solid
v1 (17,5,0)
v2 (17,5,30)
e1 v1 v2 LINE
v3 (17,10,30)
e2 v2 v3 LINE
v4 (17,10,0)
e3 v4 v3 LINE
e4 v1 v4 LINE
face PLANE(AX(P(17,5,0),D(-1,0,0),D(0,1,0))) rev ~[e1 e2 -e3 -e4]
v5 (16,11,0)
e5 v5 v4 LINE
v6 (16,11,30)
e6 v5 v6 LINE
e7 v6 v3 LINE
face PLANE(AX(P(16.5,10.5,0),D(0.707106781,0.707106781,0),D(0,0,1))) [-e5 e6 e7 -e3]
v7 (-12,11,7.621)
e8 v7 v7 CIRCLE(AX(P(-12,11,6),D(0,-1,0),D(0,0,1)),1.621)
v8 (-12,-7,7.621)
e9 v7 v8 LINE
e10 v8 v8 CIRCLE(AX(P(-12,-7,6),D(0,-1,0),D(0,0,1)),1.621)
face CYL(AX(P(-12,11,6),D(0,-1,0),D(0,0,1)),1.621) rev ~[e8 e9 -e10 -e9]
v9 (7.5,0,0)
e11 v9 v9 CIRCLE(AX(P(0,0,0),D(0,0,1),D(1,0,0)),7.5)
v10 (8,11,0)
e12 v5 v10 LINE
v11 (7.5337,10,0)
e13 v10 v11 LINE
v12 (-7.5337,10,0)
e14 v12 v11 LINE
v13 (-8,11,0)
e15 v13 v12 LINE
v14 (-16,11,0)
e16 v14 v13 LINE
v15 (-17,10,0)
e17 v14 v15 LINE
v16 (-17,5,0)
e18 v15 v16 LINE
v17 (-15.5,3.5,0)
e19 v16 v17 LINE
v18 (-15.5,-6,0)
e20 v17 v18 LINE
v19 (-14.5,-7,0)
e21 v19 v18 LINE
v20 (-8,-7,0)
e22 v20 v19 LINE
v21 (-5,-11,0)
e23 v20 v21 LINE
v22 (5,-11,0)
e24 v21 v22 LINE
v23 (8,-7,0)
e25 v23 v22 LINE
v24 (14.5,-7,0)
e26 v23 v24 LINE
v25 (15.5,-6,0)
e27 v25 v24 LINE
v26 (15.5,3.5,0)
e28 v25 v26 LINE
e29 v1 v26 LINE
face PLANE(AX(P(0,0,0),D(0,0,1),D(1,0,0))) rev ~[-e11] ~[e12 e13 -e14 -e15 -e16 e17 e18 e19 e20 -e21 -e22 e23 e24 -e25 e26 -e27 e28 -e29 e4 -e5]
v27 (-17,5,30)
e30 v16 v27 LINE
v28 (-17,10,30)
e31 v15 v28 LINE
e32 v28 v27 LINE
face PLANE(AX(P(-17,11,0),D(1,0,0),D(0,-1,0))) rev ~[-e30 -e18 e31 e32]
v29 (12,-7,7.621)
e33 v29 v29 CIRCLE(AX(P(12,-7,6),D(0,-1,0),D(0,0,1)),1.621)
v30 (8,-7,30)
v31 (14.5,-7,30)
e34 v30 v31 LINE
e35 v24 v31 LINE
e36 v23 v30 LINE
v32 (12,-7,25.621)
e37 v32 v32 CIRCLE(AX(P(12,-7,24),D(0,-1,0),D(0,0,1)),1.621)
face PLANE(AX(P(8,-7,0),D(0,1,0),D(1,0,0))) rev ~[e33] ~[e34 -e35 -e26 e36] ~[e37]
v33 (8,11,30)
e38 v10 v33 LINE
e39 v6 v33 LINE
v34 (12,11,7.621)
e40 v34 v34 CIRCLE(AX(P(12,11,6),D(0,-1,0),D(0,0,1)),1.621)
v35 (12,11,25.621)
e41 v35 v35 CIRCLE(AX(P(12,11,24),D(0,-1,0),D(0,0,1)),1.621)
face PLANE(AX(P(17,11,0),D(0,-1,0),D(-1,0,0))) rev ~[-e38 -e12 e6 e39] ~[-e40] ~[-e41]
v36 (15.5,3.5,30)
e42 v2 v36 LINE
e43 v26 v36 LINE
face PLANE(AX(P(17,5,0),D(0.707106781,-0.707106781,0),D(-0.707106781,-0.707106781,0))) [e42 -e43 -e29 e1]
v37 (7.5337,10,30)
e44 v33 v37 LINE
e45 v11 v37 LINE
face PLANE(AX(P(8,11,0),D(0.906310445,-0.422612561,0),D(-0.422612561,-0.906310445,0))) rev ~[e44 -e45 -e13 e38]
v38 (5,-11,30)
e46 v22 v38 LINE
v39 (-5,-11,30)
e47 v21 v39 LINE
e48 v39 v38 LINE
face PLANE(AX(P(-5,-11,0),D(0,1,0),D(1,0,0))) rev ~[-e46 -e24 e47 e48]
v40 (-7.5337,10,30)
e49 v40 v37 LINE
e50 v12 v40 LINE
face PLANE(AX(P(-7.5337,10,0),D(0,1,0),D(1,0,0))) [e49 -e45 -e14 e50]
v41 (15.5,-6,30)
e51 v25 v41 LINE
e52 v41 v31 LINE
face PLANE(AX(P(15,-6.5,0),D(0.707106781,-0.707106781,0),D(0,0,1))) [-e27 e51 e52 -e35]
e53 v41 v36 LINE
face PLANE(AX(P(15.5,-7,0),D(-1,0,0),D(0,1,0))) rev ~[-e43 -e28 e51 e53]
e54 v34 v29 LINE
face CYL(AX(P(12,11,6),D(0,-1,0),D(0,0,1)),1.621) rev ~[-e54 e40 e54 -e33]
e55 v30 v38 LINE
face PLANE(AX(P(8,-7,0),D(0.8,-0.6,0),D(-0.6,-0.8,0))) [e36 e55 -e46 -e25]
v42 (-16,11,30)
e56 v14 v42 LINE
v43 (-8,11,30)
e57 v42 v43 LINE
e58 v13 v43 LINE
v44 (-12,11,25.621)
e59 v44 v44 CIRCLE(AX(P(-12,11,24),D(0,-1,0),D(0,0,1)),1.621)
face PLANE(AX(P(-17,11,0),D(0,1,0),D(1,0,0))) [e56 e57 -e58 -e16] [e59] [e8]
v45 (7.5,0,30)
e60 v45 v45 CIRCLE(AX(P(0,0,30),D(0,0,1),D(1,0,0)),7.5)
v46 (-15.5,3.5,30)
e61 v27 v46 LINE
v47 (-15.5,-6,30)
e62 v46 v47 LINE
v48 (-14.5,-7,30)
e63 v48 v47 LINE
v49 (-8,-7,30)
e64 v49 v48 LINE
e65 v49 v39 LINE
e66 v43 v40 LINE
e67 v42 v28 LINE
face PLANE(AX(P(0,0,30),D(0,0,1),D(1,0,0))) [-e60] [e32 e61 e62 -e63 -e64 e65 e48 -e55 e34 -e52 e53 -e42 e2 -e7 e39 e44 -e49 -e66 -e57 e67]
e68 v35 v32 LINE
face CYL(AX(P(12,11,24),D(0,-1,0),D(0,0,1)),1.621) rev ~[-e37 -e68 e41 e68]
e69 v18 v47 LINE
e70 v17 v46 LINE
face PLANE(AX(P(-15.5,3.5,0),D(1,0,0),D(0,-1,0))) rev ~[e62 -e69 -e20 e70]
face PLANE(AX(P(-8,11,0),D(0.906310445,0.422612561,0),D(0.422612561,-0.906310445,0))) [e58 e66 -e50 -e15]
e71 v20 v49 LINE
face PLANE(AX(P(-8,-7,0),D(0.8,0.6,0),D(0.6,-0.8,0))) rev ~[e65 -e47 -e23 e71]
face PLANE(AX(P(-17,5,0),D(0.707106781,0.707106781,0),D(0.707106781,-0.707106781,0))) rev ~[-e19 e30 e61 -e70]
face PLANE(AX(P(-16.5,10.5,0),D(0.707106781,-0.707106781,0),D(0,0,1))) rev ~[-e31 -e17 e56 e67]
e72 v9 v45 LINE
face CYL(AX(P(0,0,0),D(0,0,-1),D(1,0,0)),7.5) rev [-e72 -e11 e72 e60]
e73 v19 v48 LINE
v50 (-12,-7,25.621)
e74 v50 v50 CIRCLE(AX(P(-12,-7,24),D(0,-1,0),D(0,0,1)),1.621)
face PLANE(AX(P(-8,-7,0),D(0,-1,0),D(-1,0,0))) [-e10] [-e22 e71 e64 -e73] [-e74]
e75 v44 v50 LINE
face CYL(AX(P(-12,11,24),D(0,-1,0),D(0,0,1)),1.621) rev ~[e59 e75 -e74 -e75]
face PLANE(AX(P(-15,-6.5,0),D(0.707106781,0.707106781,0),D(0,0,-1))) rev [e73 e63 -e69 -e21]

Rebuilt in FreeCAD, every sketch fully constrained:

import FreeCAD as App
import Part
import Sketcher
from FreeCAD import Vector
Q = App.Units.Quantity


def edges_at(feature, points):
    """Names of the edges that pass closest to the given points."""
    edges = feature.Shape.Edges
    near = lambda p: min(range(len(edges)), key=lambda i: edges[i].distToShape(Part.Vertex(*p))[0])
    return sorted({f"Edge{near(p) + 1}" for p in points})


def add_polygon(sketch, points):
    """Adds a closed chain of lines whose ends are joined by coincident constraints."""
    first, n = sketch.GeometryCount, len(points)
    for a, b in zip(points, points[1:] + points[:1]):
        sketch.addGeometry(Part.LineSegment(App.Vector(*a, 0), App.Vector(*b, 0)), False)
    for i in range(n):
        sketch.addConstraint(Sketcher.Constraint("Coincident", first + i, 2, first + (i + 1) % n, 1))

doc = App.newDocument("Part")
params = doc.addObject("Spreadsheet::Sheet", "Params")
for row, (alias, value) in enumerate([
    ("sketch1_diameter", "15 mm"),
    ("sketch1_height", "6 mm"),
    ("sketch1_length", "5 mm"),
    ("sketch1_width", "9 mm"),
    ("pad1_length", "30 mm"),
    ("hole_diameter", "3.242 mm"),
    ("chamfer_size", "1 mm"),
], start=1):
    params.set(f"A{row}", alias)
    params.set(f"B{row}", "=" + value)
    params.setAlias(f"B{row}", alias)

body = doc.addObject("PartDesign::Body", "Body")

sketch1 = doc.addObject("Sketcher::SketchObject", "Sketch")
body.addObject(sketch1)
sketch1.AttachmentSupport = (doc.XY_Plane, [""])
sketch1.MapMode = "FlatFace"
add_polygon(sketch1, [(-8, 11), (-17, 11), (-17, 5), (-15.5, 3.5), (-15.5, -7), (-8, -7), (-5, -11), (5, -11), (8, -7), (15.5, -7), (15.5, 3.5), (17, 5), (17, 11), (8, 11), (7.5337, 10), (-7.5337, 10)])
sketch1.addGeometry(Part.Circle(Vector(0, 0, 0), Vector(0, 0, 1), 7.5), False)
sketch1.addConstraint(Sketcher.Constraint("Horizontal", 0))
sketch1.addConstraint(Sketcher.Constraint("Vertical", 1))
sketch1.addConstraint(Sketcher.Constraint("Vertical", 3))
sketch1.addConstraint(Sketcher.Constraint("Horizontal", 4))
sketch1.addConstraint(Sketcher.Constraint("Horizontal", 6))
sketch1.addConstraint(Sketcher.Constraint("Horizontal", 8))
sketch1.addConstraint(Sketcher.Constraint("Vertical", 9))
sketch1.addConstraint(Sketcher.Constraint("Vertical", 11))
sketch1.addConstraint(Sketcher.Constraint("Horizontal", 12))
sketch1.addConstraint(Sketcher.Constraint("Horizontal", 14))
sketch1.addConstraint(Sketcher.Constraint("Coincident", 16, 3, -1, 1))
sketch1.addConstraint(Sketcher.Constraint("Symmetric", 4, 2, 7, 2, -2))
sketch1.addConstraint(Sketcher.Constraint("Symmetric", 2, 2, 9, 2, -2))
sketch1.addConstraint(Sketcher.Constraint("Symmetric", 1, 2, 10, 2, -2))
sketch1.addConstraint(Sketcher.Constraint("Symmetric", 12, 2, 15, 2, -2))
sketch1.addConstraint(Sketcher.Constraint("Perpendicular", 2, 10))
sketch1.addConstraint(Sketcher.Constraint("Vertical", 7, 2, 12, 2))
sketch1.addConstraint(Sketcher.Constraint("Equal", 5, 7))
sketch1.addConstraint(Sketcher.Constraint("Equal", 13, 15))
sketch1.addConstraint(Sketcher.Constraint("Diameter", 16, Q("15 mm")))
sketch1.addConstraint(Sketcher.Constraint("DistanceY", 1, 2, 1, 1, Q("6 mm")))
sketch1.addConstraint(Sketcher.Constraint("Angle", 13, Q("-114.9996 deg")))
sketch1.addConstraint(Sketcher.Constraint("Distance", 5, Q("5 mm")))
sketch1.addConstraint(Sketcher.Constraint("DistanceY", -1, 1, 0, 2, Q("11 mm")))
sketch1.addConstraint(Sketcher.Constraint("DistanceX", 4, 2, -1, 1, Q("8 mm")))
sketch1.addConstraint(Sketcher.Constraint("DistanceX", 5, 2, -1, 1, Q("5 mm")))
sketch1.addConstraint(Sketcher.Constraint("DistanceY", 5, 2, -1, 1, Q("11 mm")))
sketch1.addConstraint(Sketcher.Constraint("DistanceY", 13, 2, 12, 2, Q("1 mm")))
sketch1.addConstraint(Sketcher.Constraint("DistanceX", 1, 2, 2, 2, Q("1.5 mm")))
sketch1.addConstraint(Sketcher.Constraint("DistanceX", 0, 2, 0, 1, Q("9 mm")))
sketch1.setExpression("Constraints[35]", "Params.sketch1_diameter")
sketch1.setExpression("Constraints[36]", "Params.sketch1_height")
sketch1.setExpression("Constraints[38]", "Params.sketch1_length")
sketch1.setExpression("Constraints[45]", "Params.sketch1_width")
pad1 = doc.addObject("PartDesign::Pad", "Pad")
body.addObject(pad1)
pad1.Profile = sketch1
pad1.setExpression("Length", "Params.pad1_length")

sketch2 = doc.addObject("Sketcher::SketchObject", "Sketch001")
body.addObject(sketch2)
sketch2.AttachmentSupport = (doc.XZ_Plane, [""])
sketch2.MapMode = "FlatFace"
sketch2.AttachmentOffset = App.Placement(Vector(0, 0, -11), App.Rotation())
sketch2.addGeometry(Part.Circle(Vector(-12, 24, 0), Vector(0, 0, 1), 1.621), False)
sketch2.addGeometry(Part.Circle(Vector(12, 24, 0), Vector(0, 0, 1), 1.621), False)
sketch2.addGeometry(Part.Circle(Vector(12, 6, 0), Vector(0, 0, 1), 1.621), False)
sketch2.addGeometry(Part.Circle(Vector(-12, 6, 0), Vector(0, 0, 1), 1.621), False)
sketch2.addConstraint(Sketcher.Constraint("Equal", 0, 1))
sketch2.addConstraint(Sketcher.Constraint("Equal", 1, 2))
sketch2.addConstraint(Sketcher.Constraint("Equal", 2, 3))
sketch2.addConstraint(Sketcher.Constraint("Symmetric", 0, 3, 1, 3, -2))
sketch2.addConstraint(Sketcher.Constraint("Symmetric", 2, 3, 3, 3, -2))
sketch2.addConstraint(Sketcher.Constraint("Vertical", 1, 3, 2, 3))
sketch2.addConstraint(Sketcher.Constraint("Diameter", 0, Q("3.242 mm")))
sketch2.addConstraint(Sketcher.Constraint("DistanceX", 0, 3, -1, 1, Q("12 mm")))
sketch2.addConstraint(Sketcher.Constraint("DistanceY", -1, 1, 0, 3, Q("24 mm")))
sketch2.addConstraint(Sketcher.Constraint("DistanceY", -1, 1, 2, 3, Q("6 mm")))
doc.recompute()
hole = doc.addObject("PartDesign::Hole", "Hole")
body.addObject(hole)
hole.Profile = sketch2
hole.ThreadType = "None"
hole.setExpression("Diameter", "Params.hole_diameter")
hole.DepthType = "ThroughAll"
hole.Reversed = True
doc.recompute()

chamfer = doc.addObject("PartDesign::Chamfer", "Chamfer")
body.addObject(chamfer)
chamfer.Base = (hole, edges_at(hole, [
    (-17, 11, 15),
    (17, 11, 15),
    (15.5, -7, 15),
    (-15.5, -7, 15),
]))
chamfer.setExpression("Size", "Params.chamfer_size")

doc.recompute()
